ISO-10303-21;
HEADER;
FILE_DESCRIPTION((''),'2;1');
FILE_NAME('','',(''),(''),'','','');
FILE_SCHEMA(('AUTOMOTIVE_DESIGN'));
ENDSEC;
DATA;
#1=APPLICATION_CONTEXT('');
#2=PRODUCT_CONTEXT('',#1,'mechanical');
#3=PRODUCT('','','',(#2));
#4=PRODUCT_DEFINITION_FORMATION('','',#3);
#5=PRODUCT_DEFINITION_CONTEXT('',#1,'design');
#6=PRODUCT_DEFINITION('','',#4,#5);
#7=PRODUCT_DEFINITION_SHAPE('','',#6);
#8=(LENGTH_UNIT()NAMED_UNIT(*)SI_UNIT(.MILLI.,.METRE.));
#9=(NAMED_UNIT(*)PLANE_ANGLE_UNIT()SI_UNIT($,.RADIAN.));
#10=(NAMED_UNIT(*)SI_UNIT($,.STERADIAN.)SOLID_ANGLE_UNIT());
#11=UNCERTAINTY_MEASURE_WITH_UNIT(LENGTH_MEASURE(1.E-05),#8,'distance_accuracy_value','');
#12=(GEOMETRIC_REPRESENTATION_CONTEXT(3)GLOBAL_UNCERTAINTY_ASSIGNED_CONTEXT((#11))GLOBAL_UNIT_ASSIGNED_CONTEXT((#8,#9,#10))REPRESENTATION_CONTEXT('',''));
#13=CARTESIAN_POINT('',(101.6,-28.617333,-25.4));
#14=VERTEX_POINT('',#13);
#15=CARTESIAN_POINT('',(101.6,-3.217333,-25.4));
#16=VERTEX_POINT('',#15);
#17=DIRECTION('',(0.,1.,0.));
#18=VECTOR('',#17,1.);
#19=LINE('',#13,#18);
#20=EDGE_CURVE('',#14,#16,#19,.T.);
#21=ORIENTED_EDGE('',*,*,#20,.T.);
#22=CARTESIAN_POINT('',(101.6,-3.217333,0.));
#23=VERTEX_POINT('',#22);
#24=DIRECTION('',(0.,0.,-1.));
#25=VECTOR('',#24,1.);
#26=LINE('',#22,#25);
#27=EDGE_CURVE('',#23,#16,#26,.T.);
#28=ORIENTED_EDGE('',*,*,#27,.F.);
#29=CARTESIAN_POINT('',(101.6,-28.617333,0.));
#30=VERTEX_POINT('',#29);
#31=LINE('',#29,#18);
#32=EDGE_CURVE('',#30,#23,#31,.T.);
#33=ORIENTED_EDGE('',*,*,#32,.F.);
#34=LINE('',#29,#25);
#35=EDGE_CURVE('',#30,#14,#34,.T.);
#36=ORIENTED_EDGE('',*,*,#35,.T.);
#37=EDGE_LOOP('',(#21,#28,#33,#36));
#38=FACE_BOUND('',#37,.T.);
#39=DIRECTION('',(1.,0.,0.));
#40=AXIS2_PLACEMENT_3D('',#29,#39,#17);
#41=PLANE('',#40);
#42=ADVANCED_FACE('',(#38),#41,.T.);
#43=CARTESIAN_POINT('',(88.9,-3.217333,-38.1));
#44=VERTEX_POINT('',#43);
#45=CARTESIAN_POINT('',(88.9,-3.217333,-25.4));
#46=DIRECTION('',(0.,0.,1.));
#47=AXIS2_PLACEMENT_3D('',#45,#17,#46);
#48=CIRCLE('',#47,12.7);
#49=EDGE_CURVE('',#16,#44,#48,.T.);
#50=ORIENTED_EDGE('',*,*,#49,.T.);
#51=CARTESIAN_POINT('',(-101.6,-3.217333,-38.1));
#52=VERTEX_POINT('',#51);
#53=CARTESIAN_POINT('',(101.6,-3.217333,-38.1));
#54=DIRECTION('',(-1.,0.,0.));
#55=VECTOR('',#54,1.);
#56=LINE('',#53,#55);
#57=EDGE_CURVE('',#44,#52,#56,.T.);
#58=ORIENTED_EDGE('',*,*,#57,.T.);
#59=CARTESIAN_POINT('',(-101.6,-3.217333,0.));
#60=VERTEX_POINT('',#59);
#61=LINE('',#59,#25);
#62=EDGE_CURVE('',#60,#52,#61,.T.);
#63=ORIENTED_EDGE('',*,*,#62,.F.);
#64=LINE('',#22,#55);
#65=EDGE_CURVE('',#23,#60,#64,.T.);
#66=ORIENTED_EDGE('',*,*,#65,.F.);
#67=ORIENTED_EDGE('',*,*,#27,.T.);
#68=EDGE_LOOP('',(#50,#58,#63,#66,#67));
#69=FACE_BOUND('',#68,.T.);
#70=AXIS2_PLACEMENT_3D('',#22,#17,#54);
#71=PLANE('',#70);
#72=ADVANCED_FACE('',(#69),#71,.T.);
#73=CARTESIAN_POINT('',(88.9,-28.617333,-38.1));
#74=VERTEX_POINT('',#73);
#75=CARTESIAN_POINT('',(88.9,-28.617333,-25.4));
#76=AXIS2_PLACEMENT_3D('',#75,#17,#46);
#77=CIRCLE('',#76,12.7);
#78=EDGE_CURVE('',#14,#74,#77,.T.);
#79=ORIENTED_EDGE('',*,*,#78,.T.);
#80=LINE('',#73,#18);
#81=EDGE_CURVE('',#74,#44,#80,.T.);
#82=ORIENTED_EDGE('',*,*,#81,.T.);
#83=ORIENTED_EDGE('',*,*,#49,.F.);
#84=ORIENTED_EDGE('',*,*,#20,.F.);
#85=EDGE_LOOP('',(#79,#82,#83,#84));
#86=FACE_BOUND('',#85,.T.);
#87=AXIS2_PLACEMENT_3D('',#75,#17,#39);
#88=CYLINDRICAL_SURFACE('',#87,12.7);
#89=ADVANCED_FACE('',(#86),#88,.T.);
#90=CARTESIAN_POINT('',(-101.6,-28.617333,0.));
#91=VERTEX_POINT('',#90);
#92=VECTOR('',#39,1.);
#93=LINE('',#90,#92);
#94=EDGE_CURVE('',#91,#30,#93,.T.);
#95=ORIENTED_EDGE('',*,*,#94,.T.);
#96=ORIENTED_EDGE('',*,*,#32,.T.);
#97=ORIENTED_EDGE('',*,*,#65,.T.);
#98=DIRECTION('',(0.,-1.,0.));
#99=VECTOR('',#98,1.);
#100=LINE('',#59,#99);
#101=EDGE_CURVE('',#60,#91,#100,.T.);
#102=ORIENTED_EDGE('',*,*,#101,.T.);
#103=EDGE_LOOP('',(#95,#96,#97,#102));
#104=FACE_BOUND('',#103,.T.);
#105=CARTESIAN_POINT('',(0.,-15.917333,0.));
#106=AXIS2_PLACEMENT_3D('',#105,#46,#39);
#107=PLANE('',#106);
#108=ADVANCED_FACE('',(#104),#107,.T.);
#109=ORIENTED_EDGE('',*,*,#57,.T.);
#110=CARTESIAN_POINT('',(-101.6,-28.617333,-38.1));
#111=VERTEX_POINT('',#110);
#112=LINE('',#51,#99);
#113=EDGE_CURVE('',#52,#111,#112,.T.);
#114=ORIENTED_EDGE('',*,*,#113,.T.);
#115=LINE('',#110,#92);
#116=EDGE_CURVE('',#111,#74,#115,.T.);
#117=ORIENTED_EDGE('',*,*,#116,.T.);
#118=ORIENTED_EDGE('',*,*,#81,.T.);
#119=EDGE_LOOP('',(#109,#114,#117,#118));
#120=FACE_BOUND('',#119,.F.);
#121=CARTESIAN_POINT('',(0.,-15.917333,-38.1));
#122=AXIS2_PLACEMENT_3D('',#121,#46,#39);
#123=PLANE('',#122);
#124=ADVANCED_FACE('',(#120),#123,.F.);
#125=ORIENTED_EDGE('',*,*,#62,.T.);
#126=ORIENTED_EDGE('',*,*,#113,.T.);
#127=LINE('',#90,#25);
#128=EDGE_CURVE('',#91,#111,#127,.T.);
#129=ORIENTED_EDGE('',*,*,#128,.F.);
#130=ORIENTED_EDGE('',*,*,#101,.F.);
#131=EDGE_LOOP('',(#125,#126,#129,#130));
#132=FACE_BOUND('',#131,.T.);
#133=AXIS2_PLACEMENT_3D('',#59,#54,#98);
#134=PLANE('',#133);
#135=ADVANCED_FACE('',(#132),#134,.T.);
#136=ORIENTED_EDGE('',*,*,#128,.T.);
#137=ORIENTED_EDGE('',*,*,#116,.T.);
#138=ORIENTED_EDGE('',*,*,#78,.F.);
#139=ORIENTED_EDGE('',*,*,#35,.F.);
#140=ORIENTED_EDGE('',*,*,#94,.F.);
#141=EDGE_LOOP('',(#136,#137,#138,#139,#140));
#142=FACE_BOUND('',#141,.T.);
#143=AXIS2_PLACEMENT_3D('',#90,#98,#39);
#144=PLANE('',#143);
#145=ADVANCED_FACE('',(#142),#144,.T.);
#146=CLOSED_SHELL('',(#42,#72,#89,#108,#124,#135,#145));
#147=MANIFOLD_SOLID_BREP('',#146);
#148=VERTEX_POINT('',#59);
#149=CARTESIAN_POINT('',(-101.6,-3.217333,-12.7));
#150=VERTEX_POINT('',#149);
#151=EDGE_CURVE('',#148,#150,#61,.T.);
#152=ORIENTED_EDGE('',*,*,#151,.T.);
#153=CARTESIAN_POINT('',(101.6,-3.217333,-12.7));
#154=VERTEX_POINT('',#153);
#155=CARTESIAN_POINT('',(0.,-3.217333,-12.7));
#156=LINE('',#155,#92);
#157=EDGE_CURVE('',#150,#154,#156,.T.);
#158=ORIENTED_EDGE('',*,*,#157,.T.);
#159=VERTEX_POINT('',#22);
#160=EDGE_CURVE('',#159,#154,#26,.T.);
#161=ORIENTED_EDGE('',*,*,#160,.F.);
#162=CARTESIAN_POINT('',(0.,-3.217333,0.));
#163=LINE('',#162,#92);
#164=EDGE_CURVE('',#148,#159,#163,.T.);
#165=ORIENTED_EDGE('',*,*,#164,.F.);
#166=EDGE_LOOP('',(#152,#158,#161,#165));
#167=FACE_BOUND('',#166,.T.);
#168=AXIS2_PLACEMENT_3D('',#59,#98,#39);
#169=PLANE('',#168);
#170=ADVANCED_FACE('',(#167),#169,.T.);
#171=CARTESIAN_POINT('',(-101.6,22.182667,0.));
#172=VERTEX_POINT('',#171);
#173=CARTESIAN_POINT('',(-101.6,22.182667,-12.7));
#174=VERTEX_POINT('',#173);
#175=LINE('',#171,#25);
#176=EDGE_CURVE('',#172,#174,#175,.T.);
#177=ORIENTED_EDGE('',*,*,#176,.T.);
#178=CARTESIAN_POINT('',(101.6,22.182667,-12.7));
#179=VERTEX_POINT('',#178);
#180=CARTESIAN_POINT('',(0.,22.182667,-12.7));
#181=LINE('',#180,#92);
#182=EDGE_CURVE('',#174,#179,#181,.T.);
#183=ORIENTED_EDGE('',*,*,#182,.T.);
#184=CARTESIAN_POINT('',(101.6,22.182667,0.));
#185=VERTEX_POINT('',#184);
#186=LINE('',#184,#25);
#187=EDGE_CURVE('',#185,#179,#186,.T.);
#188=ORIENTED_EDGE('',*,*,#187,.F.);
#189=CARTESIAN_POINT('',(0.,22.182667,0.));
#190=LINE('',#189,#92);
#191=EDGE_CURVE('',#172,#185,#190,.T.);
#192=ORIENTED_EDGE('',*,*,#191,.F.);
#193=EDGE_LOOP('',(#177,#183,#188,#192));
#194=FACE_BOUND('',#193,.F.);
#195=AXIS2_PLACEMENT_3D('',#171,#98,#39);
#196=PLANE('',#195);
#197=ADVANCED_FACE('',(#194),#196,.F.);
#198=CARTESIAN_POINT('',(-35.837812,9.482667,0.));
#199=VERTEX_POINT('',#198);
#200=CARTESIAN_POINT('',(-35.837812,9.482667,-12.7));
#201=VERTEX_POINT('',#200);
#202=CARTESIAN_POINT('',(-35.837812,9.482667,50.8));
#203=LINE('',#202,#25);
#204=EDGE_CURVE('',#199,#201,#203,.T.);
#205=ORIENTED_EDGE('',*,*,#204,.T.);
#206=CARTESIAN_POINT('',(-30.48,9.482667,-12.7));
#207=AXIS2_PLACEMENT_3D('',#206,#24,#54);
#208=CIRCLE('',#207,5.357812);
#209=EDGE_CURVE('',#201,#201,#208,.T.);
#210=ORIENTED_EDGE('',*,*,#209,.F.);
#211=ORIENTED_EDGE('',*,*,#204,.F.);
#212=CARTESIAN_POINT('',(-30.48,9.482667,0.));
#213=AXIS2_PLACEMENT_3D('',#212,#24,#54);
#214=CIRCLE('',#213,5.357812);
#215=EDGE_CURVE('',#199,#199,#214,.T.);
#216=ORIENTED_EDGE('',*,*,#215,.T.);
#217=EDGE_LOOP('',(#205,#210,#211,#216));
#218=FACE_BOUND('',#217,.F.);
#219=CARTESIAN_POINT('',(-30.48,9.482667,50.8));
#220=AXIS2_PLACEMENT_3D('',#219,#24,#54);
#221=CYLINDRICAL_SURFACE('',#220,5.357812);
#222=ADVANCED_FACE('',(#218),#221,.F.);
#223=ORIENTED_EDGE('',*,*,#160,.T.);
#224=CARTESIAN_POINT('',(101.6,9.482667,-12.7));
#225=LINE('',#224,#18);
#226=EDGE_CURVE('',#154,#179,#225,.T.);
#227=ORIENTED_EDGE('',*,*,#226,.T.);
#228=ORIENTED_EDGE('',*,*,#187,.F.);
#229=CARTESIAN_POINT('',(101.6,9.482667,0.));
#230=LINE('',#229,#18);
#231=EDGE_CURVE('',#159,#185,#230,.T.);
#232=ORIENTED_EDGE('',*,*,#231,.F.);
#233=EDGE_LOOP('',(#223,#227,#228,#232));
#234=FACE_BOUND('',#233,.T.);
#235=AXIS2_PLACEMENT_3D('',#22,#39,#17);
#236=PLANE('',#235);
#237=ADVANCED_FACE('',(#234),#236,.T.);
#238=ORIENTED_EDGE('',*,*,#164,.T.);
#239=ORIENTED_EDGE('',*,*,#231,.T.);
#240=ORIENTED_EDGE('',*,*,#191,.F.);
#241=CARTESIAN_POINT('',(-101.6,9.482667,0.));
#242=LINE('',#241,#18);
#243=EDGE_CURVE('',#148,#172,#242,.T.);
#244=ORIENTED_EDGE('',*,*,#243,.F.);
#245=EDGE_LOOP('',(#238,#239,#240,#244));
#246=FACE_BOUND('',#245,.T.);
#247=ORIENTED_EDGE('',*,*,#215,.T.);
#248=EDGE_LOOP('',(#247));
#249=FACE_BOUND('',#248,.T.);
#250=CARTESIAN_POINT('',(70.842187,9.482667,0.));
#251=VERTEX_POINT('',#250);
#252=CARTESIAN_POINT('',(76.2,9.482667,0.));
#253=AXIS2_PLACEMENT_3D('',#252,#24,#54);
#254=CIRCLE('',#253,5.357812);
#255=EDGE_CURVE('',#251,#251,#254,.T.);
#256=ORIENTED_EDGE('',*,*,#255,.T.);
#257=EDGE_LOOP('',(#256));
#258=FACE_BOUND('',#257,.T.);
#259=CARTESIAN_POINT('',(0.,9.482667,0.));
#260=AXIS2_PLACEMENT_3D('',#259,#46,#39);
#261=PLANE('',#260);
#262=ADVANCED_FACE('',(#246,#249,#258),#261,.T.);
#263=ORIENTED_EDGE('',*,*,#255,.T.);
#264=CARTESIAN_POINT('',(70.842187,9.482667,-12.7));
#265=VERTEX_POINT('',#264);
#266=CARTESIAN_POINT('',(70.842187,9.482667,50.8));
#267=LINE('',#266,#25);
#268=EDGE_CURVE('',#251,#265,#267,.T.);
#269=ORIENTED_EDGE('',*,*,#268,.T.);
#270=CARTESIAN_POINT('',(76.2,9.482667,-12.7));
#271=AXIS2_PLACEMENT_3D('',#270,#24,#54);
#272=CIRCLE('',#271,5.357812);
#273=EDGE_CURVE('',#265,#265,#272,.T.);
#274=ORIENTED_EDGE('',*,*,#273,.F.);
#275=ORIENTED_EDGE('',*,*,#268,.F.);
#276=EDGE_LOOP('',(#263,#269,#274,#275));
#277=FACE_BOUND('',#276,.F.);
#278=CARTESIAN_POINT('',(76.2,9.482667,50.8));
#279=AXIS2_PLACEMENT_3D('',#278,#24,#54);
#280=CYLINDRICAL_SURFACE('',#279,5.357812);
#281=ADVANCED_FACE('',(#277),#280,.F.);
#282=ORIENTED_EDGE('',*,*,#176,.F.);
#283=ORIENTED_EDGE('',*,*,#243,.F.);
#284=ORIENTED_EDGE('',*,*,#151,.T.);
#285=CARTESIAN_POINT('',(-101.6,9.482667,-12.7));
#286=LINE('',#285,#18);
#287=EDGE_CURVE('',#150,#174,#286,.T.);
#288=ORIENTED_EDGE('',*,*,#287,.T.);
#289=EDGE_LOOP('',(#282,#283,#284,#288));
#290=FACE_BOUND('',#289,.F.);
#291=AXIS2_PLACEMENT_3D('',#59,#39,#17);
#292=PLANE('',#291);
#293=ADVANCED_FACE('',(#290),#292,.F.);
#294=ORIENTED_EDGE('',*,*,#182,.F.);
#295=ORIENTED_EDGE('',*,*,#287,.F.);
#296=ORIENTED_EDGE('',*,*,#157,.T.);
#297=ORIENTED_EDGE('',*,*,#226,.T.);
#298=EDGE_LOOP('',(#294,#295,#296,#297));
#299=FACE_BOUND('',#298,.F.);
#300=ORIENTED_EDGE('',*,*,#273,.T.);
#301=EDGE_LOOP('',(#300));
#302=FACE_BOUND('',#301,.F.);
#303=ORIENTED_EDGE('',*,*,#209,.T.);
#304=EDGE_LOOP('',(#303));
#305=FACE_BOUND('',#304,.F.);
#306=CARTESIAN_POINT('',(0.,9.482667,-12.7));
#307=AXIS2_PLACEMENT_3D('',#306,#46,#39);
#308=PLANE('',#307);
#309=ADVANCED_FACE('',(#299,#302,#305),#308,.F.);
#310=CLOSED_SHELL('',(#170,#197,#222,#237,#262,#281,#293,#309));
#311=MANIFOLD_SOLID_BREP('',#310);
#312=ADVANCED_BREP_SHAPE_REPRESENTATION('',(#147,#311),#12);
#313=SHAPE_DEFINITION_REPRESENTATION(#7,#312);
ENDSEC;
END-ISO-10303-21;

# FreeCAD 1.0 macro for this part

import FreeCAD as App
import Part
import Sketcher
Q = App.Units.Quantity


def edges_at(feature, points):
    """Names of the edges that pass closest to the given points."""
    edges = feature.Shape.Edges
    near = lambda p: min(range(len(edges)), key=lambda i: edges[i].distToShape(Part.Vertex(*p))[0])
    return sorted({f"Edge{near(p) + 1}" for p in points})


def add_polygon(sketch, points):
    """Adds a closed chain of lines whose ends are joined by coincident constraints."""
    first, n = sketch.GeometryCount, len(points)
    for a, b in zip(points, points[1:] + points[:1]):
        sketch.addGeometry(Part.LineSegment(App.Vector(*a, 0), App.Vector(*b, 0)), False)
    for i in range(n):
        sketch.addConstraint(Sketcher.Constraint("Coincident", first + i, 2, first + (i + 1) % n, 1))

doc = App.newDocument("Part")
body = doc.addObject("PartDesign::Body", "Body")

sketch1 = doc.addObject("Sketcher::SketchObject", "Sketch")
body.addObject(sketch1)
sketch1.AttachmentSupport = (doc.XY_Plane, [""])
sketch1.MapMode = "FlatFace"
add_polygon(sketch1, [(-102, 22), (-102, -3), (102, -3), (102, 22)])
sketch1.addConstraint([
    Sketcher.Constraint("Vertical", 0),
    Sketcher.Constraint("Horizontal", 1),
    Sketcher.Constraint("Vertical", 2),
    Sketcher.Constraint("Horizontal", 3),
    Sketcher.Constraint("DistanceX", 1, 1, 1, 2, Q("8 in")),
    Sketcher.Constraint("DistanceY", 0, 2, 0, 1, Q("1 in")),
    Sketcher.Constraint("DistanceX", 0, 2, -1, 1, Q("4 in")),
    Sketcher.Constraint("DistanceY", 0, 2, -1, 1, 3.217333),
])
pad1 = doc.addObject("PartDesign::Pad", "Pad")
body.addObject(pad1)
pad1.Profile = sketch1
pad1.Length = Q("0.5 in")
pad1.Reversed = True

sketch2 = doc.addObject("Sketcher::SketchObject", "Sketch001")
body.addObject(sketch2)
sketch2.AttachmentSupport = (doc.XY_Plane, [""])
sketch2.MapMode = "FlatFace"
sketch2.addGeometry([
    Part.Circle(App.Vector(-30, 9, 0), App.Vector(0, 0, 1), 5),
    Part.Circle(App.Vector(76, 9, 0), App.Vector(0, 0, 1), 5),
], False)
sketch2.addConstraint([
    Sketcher.Constraint("Equal", 0, 1),
    Sketcher.Constraint("Horizontal", 0, 3, 1, 3),
    Sketcher.Constraint("Diameter", 0, Q("0.421875 in")),
    Sketcher.Constraint("DistanceX", -1, 1, 1, 3, Q("3 in")),
    Sketcher.Constraint("DistanceX", 0, 3, -1, 1, Q("1.2 in")),
    Sketcher.Constraint("DistanceY", -1, 1, 0, 3, 9.482667),
])
doc.recompute()
hole = doc.addObject("PartDesign::Hole", "Hole")
body.addObject(hole)
hole.Profile = sketch2
hole.ThreadType = "None"
hole.Diameter = Q("0.421875 in")
hole.DepthType = "Dimension"
hole.Depth = Q("2 in")
hole.DrillPoint = "Angled"
hole.DrillPointAngle = 118
body2 = doc.addObject("PartDesign::Body", "Body001")

sketch3 = doc.addObject("Sketcher::SketchObject", "Sketch002")
body2.addObject(sketch3)
sketch3.AttachmentSupport = (doc.getObject("XY_Plane001"), [""])
sketch3.MapMode = "FlatFace"
add_polygon(sketch3, [(102, -3), (-102, -3), (-102, -29), (102, -29)])
sketch3.addConstraint([
    Sketcher.Constraint("Horizontal", 0),
    Sketcher.Constraint("Vertical", 1),
    Sketcher.Constraint("Horizontal", 2),
    Sketcher.Constraint("Vertical", 3),
    Sketcher.Constraint("DistanceX", 0, 2, 0, 1, Q("8 in")),
    Sketcher.Constraint("DistanceY", 1, 2, 1, 1, Q("1 in")),
    Sketcher.Constraint("DistanceX", 0, 2, -1, 1, Q("4 in")),
    Sketcher.Constraint("DistanceY", 0, 2, -1, 1, 3.217333),
])
pad2 = doc.addObject("PartDesign::Pad", "Pad001")
body2.addObject(pad2)
pad2.Profile = sketch3
pad2.Length = Q("1.5 in")
pad2.Reversed = True
doc.recompute()

fillet = doc.addObject("PartDesign::Fillet", "Fillet")
body2.addObject(fillet)
fillet.Base = (pad2, edges_at(pad2, [(101.6, -15.917, -38.1)]))
fillet.Radius = Q("0.5 in")

doc.recompute()
